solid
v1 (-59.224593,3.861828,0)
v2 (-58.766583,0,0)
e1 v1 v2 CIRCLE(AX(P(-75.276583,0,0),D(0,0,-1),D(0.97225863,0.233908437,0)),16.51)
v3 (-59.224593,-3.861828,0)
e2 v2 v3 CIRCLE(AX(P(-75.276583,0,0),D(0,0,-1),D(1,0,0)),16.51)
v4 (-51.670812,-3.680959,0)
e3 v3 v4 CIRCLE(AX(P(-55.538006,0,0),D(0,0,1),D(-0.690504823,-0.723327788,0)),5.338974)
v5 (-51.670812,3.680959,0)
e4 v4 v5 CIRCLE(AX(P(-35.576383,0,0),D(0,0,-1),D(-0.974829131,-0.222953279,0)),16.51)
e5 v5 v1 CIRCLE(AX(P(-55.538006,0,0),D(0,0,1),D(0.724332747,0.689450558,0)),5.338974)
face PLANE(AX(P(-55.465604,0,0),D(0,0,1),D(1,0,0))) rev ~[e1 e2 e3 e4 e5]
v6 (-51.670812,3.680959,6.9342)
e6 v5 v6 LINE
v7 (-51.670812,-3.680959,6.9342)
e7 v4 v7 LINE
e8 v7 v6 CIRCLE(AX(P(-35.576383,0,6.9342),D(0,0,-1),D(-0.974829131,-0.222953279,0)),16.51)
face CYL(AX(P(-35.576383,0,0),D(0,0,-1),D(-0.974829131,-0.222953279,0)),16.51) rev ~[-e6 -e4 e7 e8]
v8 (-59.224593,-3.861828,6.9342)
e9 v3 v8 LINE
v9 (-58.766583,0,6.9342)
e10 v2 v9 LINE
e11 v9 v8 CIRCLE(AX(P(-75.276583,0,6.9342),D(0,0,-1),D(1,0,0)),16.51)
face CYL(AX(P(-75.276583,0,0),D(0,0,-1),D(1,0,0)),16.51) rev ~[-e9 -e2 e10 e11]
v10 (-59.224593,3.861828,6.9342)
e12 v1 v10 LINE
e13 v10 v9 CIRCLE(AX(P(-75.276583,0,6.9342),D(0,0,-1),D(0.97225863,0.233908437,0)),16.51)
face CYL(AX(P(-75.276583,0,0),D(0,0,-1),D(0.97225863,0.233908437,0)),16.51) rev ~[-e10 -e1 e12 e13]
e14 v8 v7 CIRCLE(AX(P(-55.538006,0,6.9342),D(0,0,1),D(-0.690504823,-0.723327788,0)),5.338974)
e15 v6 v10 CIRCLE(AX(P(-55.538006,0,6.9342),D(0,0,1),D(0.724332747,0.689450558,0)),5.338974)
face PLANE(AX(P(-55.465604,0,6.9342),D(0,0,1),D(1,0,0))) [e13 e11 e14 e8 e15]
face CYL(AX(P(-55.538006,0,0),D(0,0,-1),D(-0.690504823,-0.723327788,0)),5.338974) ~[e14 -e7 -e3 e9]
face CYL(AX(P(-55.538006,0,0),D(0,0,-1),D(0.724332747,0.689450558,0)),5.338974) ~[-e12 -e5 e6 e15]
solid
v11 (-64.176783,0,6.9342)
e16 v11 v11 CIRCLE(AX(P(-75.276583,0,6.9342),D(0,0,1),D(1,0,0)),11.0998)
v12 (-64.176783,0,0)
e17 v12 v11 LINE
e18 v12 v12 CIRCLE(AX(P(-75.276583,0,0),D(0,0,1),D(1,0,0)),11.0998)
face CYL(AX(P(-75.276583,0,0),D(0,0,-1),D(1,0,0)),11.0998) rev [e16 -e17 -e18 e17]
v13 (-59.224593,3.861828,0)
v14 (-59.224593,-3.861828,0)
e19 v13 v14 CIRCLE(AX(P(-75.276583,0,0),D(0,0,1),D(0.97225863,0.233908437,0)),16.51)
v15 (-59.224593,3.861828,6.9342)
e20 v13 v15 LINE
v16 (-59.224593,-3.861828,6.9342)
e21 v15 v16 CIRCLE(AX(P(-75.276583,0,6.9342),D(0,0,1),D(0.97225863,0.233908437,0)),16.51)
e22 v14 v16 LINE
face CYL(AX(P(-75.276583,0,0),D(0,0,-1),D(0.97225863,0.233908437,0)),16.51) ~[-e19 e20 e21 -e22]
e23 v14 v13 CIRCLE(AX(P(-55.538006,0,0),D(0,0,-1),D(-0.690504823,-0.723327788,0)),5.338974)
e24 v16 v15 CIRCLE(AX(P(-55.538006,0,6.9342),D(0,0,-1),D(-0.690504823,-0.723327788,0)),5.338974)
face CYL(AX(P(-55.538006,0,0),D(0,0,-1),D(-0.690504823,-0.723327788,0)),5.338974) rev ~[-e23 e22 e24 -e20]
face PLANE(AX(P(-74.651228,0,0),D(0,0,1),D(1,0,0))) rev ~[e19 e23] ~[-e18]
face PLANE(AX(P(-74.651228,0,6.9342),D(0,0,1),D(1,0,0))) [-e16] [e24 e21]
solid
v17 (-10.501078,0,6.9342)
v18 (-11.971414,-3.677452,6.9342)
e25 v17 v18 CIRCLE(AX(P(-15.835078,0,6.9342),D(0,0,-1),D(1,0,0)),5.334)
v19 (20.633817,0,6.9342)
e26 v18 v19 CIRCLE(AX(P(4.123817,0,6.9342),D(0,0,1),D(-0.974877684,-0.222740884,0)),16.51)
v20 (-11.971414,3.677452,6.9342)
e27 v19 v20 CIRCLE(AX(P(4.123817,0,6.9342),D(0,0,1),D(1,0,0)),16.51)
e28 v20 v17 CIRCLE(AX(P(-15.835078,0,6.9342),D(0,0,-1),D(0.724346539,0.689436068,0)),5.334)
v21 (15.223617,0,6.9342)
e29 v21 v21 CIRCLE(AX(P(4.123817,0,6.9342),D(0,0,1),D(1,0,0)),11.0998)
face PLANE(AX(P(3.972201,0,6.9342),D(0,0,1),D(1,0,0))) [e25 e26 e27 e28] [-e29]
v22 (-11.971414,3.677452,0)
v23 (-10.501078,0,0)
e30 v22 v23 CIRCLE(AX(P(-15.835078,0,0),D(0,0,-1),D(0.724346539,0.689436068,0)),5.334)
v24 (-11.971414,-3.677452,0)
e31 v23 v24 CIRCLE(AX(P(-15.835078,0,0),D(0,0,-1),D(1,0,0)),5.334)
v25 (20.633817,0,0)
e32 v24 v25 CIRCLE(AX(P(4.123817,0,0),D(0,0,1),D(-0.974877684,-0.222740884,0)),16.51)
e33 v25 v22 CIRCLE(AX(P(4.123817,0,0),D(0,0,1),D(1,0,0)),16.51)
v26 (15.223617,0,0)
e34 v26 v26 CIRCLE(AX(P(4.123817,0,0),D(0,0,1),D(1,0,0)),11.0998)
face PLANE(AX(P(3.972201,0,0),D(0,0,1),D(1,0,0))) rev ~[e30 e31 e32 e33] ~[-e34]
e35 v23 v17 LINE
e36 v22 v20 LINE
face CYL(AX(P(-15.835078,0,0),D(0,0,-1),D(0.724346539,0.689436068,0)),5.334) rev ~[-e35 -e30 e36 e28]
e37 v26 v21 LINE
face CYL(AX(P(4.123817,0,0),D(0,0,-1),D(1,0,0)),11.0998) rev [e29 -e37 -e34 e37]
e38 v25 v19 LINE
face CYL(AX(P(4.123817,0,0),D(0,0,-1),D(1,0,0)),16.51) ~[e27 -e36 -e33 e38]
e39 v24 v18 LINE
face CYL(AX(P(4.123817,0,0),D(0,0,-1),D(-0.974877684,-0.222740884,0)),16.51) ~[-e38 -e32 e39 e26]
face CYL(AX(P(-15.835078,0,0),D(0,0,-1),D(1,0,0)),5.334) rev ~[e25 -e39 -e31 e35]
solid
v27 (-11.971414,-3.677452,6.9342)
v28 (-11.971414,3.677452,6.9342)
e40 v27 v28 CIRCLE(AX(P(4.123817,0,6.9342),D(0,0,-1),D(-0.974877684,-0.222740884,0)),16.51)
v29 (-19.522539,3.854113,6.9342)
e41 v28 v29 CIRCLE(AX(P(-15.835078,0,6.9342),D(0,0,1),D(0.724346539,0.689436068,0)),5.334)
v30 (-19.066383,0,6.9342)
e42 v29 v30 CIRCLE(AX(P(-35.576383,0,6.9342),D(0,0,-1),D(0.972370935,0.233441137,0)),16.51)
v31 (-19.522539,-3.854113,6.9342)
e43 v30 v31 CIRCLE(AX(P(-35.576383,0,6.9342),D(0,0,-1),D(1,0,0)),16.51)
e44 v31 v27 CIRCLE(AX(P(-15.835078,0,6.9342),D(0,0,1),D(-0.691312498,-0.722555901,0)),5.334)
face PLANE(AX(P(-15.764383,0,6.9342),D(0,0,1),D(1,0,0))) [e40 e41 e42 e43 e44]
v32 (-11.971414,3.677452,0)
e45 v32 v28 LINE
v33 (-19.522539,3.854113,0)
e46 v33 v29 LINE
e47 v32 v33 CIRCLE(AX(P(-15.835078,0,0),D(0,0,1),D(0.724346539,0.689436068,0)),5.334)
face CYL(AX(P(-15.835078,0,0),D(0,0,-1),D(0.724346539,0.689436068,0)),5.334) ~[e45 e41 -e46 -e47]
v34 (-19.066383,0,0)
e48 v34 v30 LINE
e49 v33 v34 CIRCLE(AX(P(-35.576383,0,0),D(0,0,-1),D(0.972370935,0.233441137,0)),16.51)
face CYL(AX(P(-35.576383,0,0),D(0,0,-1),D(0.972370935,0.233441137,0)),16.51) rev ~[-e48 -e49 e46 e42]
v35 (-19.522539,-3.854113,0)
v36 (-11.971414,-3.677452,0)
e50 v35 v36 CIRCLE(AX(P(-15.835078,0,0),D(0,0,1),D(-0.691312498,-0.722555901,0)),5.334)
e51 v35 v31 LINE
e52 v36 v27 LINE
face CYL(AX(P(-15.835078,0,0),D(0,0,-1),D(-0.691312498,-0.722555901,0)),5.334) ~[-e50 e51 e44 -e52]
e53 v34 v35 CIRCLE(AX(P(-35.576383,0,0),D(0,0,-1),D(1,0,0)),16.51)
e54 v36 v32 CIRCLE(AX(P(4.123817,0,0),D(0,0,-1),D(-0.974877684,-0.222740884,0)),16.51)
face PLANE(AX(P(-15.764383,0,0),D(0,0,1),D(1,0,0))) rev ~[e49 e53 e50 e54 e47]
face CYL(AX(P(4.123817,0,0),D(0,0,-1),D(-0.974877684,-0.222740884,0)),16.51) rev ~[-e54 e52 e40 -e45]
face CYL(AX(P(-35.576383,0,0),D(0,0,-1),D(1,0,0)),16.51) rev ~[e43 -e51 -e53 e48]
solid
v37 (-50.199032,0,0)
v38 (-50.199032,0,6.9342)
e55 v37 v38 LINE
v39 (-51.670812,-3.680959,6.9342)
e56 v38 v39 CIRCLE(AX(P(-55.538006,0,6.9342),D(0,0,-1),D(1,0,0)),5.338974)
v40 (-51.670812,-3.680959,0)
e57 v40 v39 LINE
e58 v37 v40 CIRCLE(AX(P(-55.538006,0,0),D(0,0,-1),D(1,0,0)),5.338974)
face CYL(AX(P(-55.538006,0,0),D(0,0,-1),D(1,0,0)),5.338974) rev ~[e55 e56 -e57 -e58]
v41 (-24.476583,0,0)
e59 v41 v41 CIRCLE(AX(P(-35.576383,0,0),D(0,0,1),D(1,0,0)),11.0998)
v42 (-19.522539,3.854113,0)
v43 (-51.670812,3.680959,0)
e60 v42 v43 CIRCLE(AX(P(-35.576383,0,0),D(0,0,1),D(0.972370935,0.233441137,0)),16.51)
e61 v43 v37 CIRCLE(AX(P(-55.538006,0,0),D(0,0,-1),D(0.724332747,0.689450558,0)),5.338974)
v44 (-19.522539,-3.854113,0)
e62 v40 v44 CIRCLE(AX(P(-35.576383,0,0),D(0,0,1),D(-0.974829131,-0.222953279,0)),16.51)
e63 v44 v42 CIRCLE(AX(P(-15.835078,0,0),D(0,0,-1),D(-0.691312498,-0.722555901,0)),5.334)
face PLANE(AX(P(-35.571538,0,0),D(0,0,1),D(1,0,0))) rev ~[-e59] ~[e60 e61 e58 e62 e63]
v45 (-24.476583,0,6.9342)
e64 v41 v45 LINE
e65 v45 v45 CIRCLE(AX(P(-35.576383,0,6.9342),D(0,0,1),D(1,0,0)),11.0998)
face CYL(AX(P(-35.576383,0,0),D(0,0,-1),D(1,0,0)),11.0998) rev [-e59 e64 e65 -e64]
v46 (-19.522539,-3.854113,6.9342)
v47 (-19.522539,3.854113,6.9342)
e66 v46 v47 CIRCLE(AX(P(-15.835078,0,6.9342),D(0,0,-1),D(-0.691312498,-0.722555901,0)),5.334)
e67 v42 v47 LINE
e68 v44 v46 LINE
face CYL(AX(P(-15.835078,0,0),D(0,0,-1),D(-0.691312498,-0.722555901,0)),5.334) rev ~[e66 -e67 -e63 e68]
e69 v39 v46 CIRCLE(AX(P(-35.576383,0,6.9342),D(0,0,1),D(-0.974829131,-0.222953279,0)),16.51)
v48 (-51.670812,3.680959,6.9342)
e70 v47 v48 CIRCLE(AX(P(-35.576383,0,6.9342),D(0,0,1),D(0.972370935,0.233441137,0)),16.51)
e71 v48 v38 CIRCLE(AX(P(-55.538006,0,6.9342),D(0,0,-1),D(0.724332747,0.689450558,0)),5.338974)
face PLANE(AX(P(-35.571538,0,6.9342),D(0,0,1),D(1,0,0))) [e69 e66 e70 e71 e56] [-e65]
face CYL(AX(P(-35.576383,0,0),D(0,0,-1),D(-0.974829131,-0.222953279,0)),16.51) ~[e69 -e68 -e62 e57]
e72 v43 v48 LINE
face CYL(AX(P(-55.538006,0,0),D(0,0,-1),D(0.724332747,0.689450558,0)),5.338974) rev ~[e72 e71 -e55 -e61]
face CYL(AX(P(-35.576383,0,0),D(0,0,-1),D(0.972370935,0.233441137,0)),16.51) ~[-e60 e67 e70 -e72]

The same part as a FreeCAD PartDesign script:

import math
import FreeCAD as App
import Part
import Sketcher
Q = App.Units.Quantity

doc = App.newDocument("Part")
body = doc.addObject("PartDesign::Body", "Body")

# Sketch on XY plane
sketch1 = doc.addObject("Sketcher::SketchObject", "Sketch")
body.addObject(sketch1)
sketch1.AttachmentSupport = (doc.XY_Plane, [""])
sketch1.MapMode = "FlatFace"
sketch1.addGeometry(Part.ArcOfCircle(Part.Circle(App.Vector(-56, 0, 0), App.Vector(0, 0, 1), 5), math.radians(134), math.radians(226)), False)
sketch1.addGeometry(Part.ArcOfCircle(Part.Circle(App.Vector(-75, 0, 0), App.Vector(0, 0, 1), 17), math.radians(14), math.radians(346)), False)
sketch1.addGeometry(Part.Circle(App.Vector(-75, 0, 0), App.Vector(0, 0, 1), 11), False)
sketch1.addConstraint(Sketcher.Constraint("Coincident", 0, 1, 1, 1))
sketch1.addConstraint(Sketcher.Constraint("Coincident", 1, 2, 0, 2))
sketch1.addConstraint(Sketcher.Constraint("Coincident", 2, 3, 1, 3))
sketch1.addConstraint(Sketcher.Constraint("Symmetric", 0, 1, 1, 2, -1))
sketch1.addConstraint(Sketcher.Constraint("Radius", 1, Q("0.65 in")))
sketch1.addConstraint(Sketcher.Constraint("Diameter", 2, Q("0.874 in")))
sketch1.addConstraint(Sketcher.Constraint("Radius", 0, 5.338974))
sketch1.addConstraint(Sketcher.Constraint("DistanceY", -1, 1, 0, 1, 3.861828))
sketch1.addConstraint(Sketcher.Constraint("DistanceX", 0, 3, -1, 1, 55.538006))
pad1 = doc.addObject("PartDesign::Pad", "Pad")
body.addObject(pad1)
pad1.Profile = sketch1
pad1.Length = Q("0.273 in")
body2 = doc.addObject("PartDesign::Body", "Body001")

# Sketch on XY plane
sketch2 = doc.addObject("Sketcher::SketchObject", "Sketch001")
body2.addObject(sketch2)
sketch2.AttachmentSupport = (doc.getObject("XY_Plane001"), [""])
sketch2.MapMode = "FlatFace"
sketch2.addGeometry(Part.ArcOfCircle(Part.Circle(App.Vector(-35.6, 0, 0), App.Vector(0, 0, 1), 16.5), math.radians(167), math.radians(193)), False)
sketch2.addGeometry(Part.ArcOfCircle(Part.Circle(App.Vector(-55.5, 0, 0), App.Vector(0, 0, 1), 5.3), math.radians(44), math.radians(134)), False)
sketch2.addGeometry(Part.ArcOfCircle(Part.Circle(App.Vector(-75.3, 0, 0), App.Vector(0, 0, 1), 16.5), math.radians(0), math.radians(13.53)), False)
sketch2.addGeometry(Part.ArcOfCircle(Part.Circle(App.Vector(-75.3, 0, 0), App.Vector(0, 0, 1), 16.5), math.radians(-13.53), math.radians(0)), False)
sketch2.addGeometry(Part.ArcOfCircle(Part.Circle(App.Vector(-55.5, 0, 0), App.Vector(0, 0, 1), 5.3), math.radians(-134), math.radians(-44)), False)
sketch2.addConstraint(Sketcher.Constraint("Coincident", 0, 1, 1, 1))
sketch2.addConstraint(Sketcher.Constraint("Coincident", 1, 2, 2, 2))
sketch2.addConstraint(Sketcher.Constraint("Tangent", 2, 1, 3, 2))
sketch2.addConstraint(Sketcher.Constraint("Coincident", 3, 1, 4, 1))
sketch2.addConstraint(Sketcher.Constraint("Coincident", 4, 2, 0, 2))
sketch2.addConstraint(Sketcher.Constraint("Coincident", 4, 3, 1, 3))
sketch2.addConstraint(Sketcher.Constraint("Equal", 0, 2))
sketch2.addConstraint(Sketcher.Constraint("Equal", 2, 3))
sketch2.addConstraint(Sketcher.Constraint("Equal", 1, 4))
sketch2.addConstraint(Sketcher.Constraint("Symmetric", 1, 2, 3, 1, -1))
sketch2.addConstraint(Sketcher.Constraint("PointOnObject", 0, 3, -1))
sketch2.addConstraint(Sketcher.Constraint("PointOnObject", 2, 1, -1))
sketch2.addConstraint(Sketcher.Constraint("Radius", 0, Q("0.65 in")))
sketch2.addConstraint(Sketcher.Constraint("DistanceX", 2, 3, 0, 3, Q("1.563 in")))
sketch2.addConstraint(Sketcher.Constraint("Radius", 1, 5.338974))
sketch2.addConstraint(Sketcher.Constraint("DistanceY", -1, 1, 0, 1, 3.680959))
sketch2.addConstraint(Sketcher.Constraint("DistanceX", 0, 3, -1, 1, 35.576383))
pad2 = doc.addObject("PartDesign::Pad", "Pad001")
body2.addObject(pad2)
pad2.Profile = sketch2
pad2.Length = Q("0.273 in")
body3 = doc.addObject("PartDesign::Body", "Body002")

# Sketch on XY plane
sketch3 = doc.addObject("Sketcher::SketchObject", "Sketch002")
body3.addObject(sketch3)
sketch3.AttachmentSupport = (doc.getObject("XY_Plane002"), [""])
sketch3.MapMode = "FlatFace"
sketch3.addGeometry(Part.ArcOfCircle(Part.Circle(App.Vector(4.1, 0, 0), App.Vector(0, 0, 1), 16.5), math.radians(-167), math.radians(0)), False)
sketch3.addGeometry(Part.ArcOfCircle(Part.Circle(App.Vector(4.1, 0, 0), App.Vector(0, 0, 1), 16.5), math.radians(0), math.radians(167)), False)
sketch3.addGeometry(Part.ArcOfCircle(Part.Circle(App.Vector(-15.8, 0, 0), App.Vector(0, 0, 1), 5.3), math.radians(0), math.radians(44)), False)
sketch3.addGeometry(Part.ArcOfCircle(Part.Circle(App.Vector(-15.8, 0, 0), App.Vector(0, 0, 1), 5.3), math.radians(-44), math.radians(0)), False)
sketch3.addGeometry(Part.Circle(App.Vector(4.1, 0, 0), App.Vector(0, 0, 1), 11.1), False)
sketch3.addConstraint(Sketcher.Constraint("Tangent", 0, 2, 1, 1))
sketch3.addConstraint(Sketcher.Constraint("Coincident", 1, 2, 2, 2))
sketch3.addConstraint(Sketcher.Constraint("Tangent", 2, 1, 3, 2))
sketch3.addConstraint(Sketcher.Constraint("Coincident", 3, 1, 0, 1))
sketch3.addConstraint(Sketcher.Constraint("Coincident", 4, 3, 0, 3))
sketch3.addConstraint(Sketcher.Constraint("Equal", 0, 1))
sketch3.addConstraint(Sketcher.Constraint("Equal", 2, 3))
sketch3.addConstraint(Sketcher.Constraint("Symmetric", 1, 2, 3, 1, -1))
sketch3.addConstraint(Sketcher.Constraint("PointOnObject", 0, 2, -1))
sketch3.addConstraint(Sketcher.Constraint("PointOnObject", 2, 1, -1))
sketch3.addConstraint(Sketcher.Constraint("Radius", 0, Q("0.65 in")))
sketch3.addConstraint(Sketcher.Constraint("Radius", 2, Q("0.21 in")))
sketch3.addConstraint(Sketcher.Constraint("Diameter", 4, Q("0.874 in")))
sketch3.addConstraint(Sketcher.Constraint("DistanceX", 2, 3, -1, 1, 15.835078))
sketch3.addConstraint(Sketcher.Constraint("DistanceY", -1, 1, 1, 2, 3.677452))
pad3 = doc.addObject("PartDesign::Pad", "Pad002")
body3.addObject(pad3)
pad3.Profile = sketch3
pad3.Length = Q("0.273 in")
body4 = doc.addObject("PartDesign::Body", "Body003")

# Sketch on XY plane
sketch4 = doc.addObject("Sketcher::SketchObject", "Sketch003")
body4.addObject(sketch4)
sketch4.AttachmentSupport = (doc.getObject("XY_Plane003"), [""])
sketch4.MapMode = "FlatFace"
sketch4.addGeometry(Part.ArcOfCircle(Part.Circle(App.Vector(-15.8, 0, 0), App.Vector(0, 0, 1), 5.3), math.radians(134), math.radians(226)), False)
sketch4.addGeometry(Part.ArcOfCircle(Part.Circle(App.Vector(-35.6, 0, 0), App.Vector(0, 0, 1), 16.5), math.radians(13), math.radians(167)), False)
sketch4.addGeometry(Part.ArcOfCircle(Part.Circle(App.Vector(-55.5, 0, 0), App.Vector(0, 0, 1), 5.3), math.radians(0), math.radians(44)), False)
sketch4.addGeometry(Part.ArcOfCircle(Part.Circle(App.Vector(-55.5, 0, 0), App.Vector(0, 0, 1), 5.3), math.radians(-44), math.radians(0)), False)
sketch4.addGeometry(Part.ArcOfCircle(Part.Circle(App.Vector(-35.6, 0, 0), App.Vector(0, 0, 1), 16.5), math.radians(-167), math.radians(-13)), False)
sketch4.addGeometry(Part.Circle(App.Vector(-35.6, 0, 0), App.Vector(0, 0, 1), 11.1), False)
sketch4.addConstraint(Sketcher.Constraint("Coincident", 0, 1, 1, 1))
sketch4.addConstraint(Sketcher.Constraint("Coincident", 1, 2, 2, 2))
sketch4.addConstraint(Sketcher.Constraint("Tangent", 2, 1, 3, 2))
sketch4.addConstraint(Sketcher.Constraint("Coincident", 3, 1, 4, 1))
sketch4.addConstraint(Sketcher.Constraint("Coincident", 4, 2, 0, 2))
sketch4.addConstraint(Sketcher.Constraint("Coincident", 4, 3, 1, 3))
sketch4.addConstraint(Sketcher.Constraint("Coincident", 5, 3, 1, 3))
sketch4.addConstraint(Sketcher.Constraint("Equal", 2, 3))
sketch4.addConstraint(Sketcher.Constraint("Equal", 1, 4))
sketch4.addConstraint(Sketcher.Constraint("Symmetric", 1, 2, 3, 1, -1))
sketch4.addConstraint(Sketcher.Constraint("PointOnObject", 0, 3, -1))
sketch4.addConstraint(Sketcher.Constraint("PointOnObject", 2, 1, -1))
sketch4.addConstraint(Sketcher.Constraint("Radius", 0, Q("0.21 in")))
sketch4.addConstraint(Sketcher.Constraint("Radius", 1, Q("0.65 in")))
sketch4.addConstraint(Sketcher.Constraint("Diameter", 5, Q("0.874 in")))
sketch4.addConstraint(Sketcher.Constraint("Radius", 2, 5.338974))
sketch4.addConstraint(Sketcher.Constraint("DistanceX", 0, 3, -1, 1, 15.835078))
sketch4.addConstraint(Sketcher.Constraint("DistanceX", 0, 1, -1, 1, 19.522539))
sketch4.addConstraint(Sketcher.Constraint("DistanceY", -1, 1, 1, 2, 3.680959))
pad4 = doc.addObject("PartDesign::Pad", "Pad003")
body4.addObject(pad4)
pad4.Profile = sketch4
pad4.Length = Q("0.273 in")
body5 = doc.addObject("PartDesign::Body", "Body004")

# Sketch on XY plane
sketch5 = doc.addObject("Sketcher::SketchObject", "Sketch004")
body5.addObject(sketch5)
sketch5.AttachmentSupport = (doc.getObject("XY_Plane004"), [""])
sketch5.MapMode = "FlatFace"
sketch5.addGeometry(Part.ArcOfCircle(Part.Circle(App.Vector(4.1, 0, 0), App.Vector(0, 0, 1), 16.5), math.radians(167), math.radians(193)), False)
sketch5.addGeometry(Part.ArcOfCircle(Part.Circle(App.Vector(-15.8, 0, 0), App.Vector(0, 0, 1), 5.3), math.radians(44), math.radians(134)), False)
sketch5.addGeometry(Part.ArcOfCircle(Part.Circle(App.Vector(-35.6, 0, 0), App.Vector(0, 0, 1), 16.5), math.radians(0), math.radians(13.5)), False)
sketch5.addGeometry(Part.ArcOfCircle(Part.Circle(App.Vector(-35.6, 0, 0), App.Vector(0, 0, 1), 16.5), math.radians(-13.5), math.radians(0)), False)
sketch5.addGeometry(Part.ArcOfCircle(Part.Circle(App.Vector(-15.8, 0, 0), App.Vector(0, 0, 1), 5.3), math.radians(-134), math.radians(-44)), False)
sketch5.addConstraint(Sketcher.Constraint("Coincident", 0, 1, 1, 1))
sketch5.addConstraint(Sketcher.Constraint("Coincident", 1, 2, 2, 2))
sketch5.addConstraint(Sketcher.Constraint("Tangent", 2, 1, 3, 2))
sketch5.addConstraint(Sketcher.Constraint("Coincident", 3, 1, 4, 1))
sketch5.addConstraint(Sketcher.Constraint("Coincident", 4, 2, 0, 2))
sketch5.addConstraint(Sketcher.Constraint("Coincident", 4, 3, 1, 3))
sketch5.addConstraint(Sketcher.Constraint("Equal", 0, 2))
sketch5.addConstraint(Sketcher.Constraint("Equal", 2, 3))
sketch5.addConstraint(Sketcher.Constraint("Equal", 1, 4))
sketch5.addConstraint(Sketcher.Constraint("Symmetric", 1, 2, 3, 1, -1))
sketch5.addConstraint(Sketcher.Constraint("PointOnObject", 0, 3, -1))
sketch5.addConstraint(Sketcher.Constraint("PointOnObject", 2, 1, -1))
sketch5.addConstraint(Sketcher.Constraint("Radius", 0, Q("0.65 in")))
sketch5.addConstraint(Sketcher.Constraint("Radius", 1, Q("0.21 in")))
sketch5.addConstraint(Sketcher.Constraint("DistanceX", 2, 3, 0, 3, Q("1.563 in")))
sketch5.addConstraint(Sketcher.Constraint("DistanceX", 1, 3, -1, 1, 15.835078))
sketch5.addConstraint(Sketcher.Constraint("DistanceY", -1, 1, 0, 1, 3.677452))
pad5 = doc.addObject("PartDesign::Pad", "Pad004")
body5.addObject(pad5)
pad5.Profile = sketch5
pad5.Length = Q("0.273 in")

doc.recompute()
